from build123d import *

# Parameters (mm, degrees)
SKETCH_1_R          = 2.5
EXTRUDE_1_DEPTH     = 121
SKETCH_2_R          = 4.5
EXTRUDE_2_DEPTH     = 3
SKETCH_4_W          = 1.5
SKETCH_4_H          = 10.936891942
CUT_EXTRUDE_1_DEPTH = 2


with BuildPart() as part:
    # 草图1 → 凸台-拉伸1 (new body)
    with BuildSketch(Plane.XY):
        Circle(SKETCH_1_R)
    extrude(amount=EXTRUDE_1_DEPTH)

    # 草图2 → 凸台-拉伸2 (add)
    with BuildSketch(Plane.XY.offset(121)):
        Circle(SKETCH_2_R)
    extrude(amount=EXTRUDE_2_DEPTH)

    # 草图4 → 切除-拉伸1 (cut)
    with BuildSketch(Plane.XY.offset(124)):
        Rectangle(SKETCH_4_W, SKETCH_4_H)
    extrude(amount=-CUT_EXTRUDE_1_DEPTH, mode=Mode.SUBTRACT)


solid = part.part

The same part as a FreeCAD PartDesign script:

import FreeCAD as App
import Part
import Sketcher
Q = App.Units.Quantity


def add_polygon(sketch, points):
    """Adds a closed chain of lines whose ends are joined by coincident constraints."""
    first, n = sketch.GeometryCount, len(points)
    for a, b in zip(points, points[1:] + points[:1]):
        sketch.addGeometry(Part.LineSegment(App.Vector(*a, 0), App.Vector(*b, 0)), False)
    for i in range(n):
        sketch.addConstraint(Sketcher.Constraint("Coincident", first + i, 2, first + (i + 1) % n, 1))

doc = App.newDocument("Part")
body = doc.addObject("PartDesign::Body", "Body")

sketch1 = body.newObject("Sketcher::SketchObject", "Sketch")
sketch1.AttachmentSupport = (doc.getObject("XY_Plane"), [""])
sketch1.MapMode = "FlatFace"
sketch1.addGeometry(Part.Circle(App.Vector(0, 0, 0), App.Vector(0, 0, 1), 2.5), False)
sketch1.addConstraint(Sketcher.Constraint("Coincident", 0, 3, -1, 1))
sketch1.addConstraint(Sketcher.Constraint("Diameter", 0, Q("5 mm")))
pad1 = body.newObject("PartDesign::Pad", "Pad")
pad1.Profile = sketch1
pad1.Length = 121

sketch2 = body.newObject("Sketcher::SketchObject", "Sketch001")
sketch2.AttachmentSupport = (doc.getObject("XY_Plane"), [""])
sketch2.MapMode = "FlatFace"
sketch2.AttachmentOffset = App.Placement(App.Vector(0, 0, 121), App.Rotation())
sketch2.addGeometry(Part.Circle(App.Vector(0, 0, 0), App.Vector(0, 0, 1), 4.5), False)
sketch2.addConstraint(Sketcher.Constraint("Coincident", 0, 3, -1, 1))
sketch2.addConstraint(Sketcher.Constraint("Diameter", 0, Q("9 mm")))
pad2 = body.newObject("PartDesign::Pad", "Pad001")
pad2.Profile = sketch2
pad2.Length = 3

sketch3 = body.newObject("Sketcher::SketchObject", "Sketch002")
sketch3.AttachmentSupport = (doc.getObject("XY_Plane"), [""])
sketch3.MapMode = "FlatFace"
sketch3.AttachmentOffset = App.Placement(App.Vector(0, 0, 124), App.Rotation())
add_polygon(sketch3, [(-0.8, 5.5), (-0.8, -5.5), (0.8, -5.5), (0.8, 5.5)])
sketch3.addConstraint(Sketcher.Constraint("Vertical", 0))
sketch3.addConstraint(Sketcher.Constraint("Horizontal", 1))
sketch3.addConstraint(Sketcher.Constraint("Vertical", 2))
sketch3.addConstraint(Sketcher.Constraint("Horizontal", 3))
sketch3.addConstraint(Sketcher.Constraint("Symmetric", 0, 2, 2, 2, -1, 1))
sketch3.addConstraint(Sketcher.Constraint("DistanceX", 1, 1, 1, 2, Q("1.5 mm")))
sketch3.addConstraint(Sketcher.Constraint("DistanceY", 0, 2, 0, 1, Q("10.936892 mm")))
pocket1 = body.newObject("PartDesign::Pocket", "Pocket")
pocket1.Profile = sketch3
pocket1.Length = 2

doc.recompute()
